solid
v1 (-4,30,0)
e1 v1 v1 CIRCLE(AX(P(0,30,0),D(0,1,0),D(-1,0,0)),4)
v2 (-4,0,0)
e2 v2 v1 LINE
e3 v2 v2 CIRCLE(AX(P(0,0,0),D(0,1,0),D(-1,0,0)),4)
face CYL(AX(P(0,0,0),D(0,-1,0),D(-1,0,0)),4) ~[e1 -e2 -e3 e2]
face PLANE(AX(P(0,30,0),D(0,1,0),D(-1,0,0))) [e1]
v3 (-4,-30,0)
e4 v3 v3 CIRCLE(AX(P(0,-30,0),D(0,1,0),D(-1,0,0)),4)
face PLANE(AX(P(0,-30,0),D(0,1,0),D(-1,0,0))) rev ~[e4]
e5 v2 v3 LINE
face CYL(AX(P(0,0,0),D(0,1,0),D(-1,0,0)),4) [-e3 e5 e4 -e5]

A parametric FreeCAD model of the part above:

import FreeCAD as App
import Part
import Sketcher
Q = App.Units.Quantity

doc = App.newDocument("Part")
params = doc.addObject("Spreadsheet::Sheet", "Params")
for row, (alias, value) in enumerate([
    ("sketch1_diameter", "8 mm"),
    ("pad1_length", "60 mm"),
], start=1):
    params.set(f"A{row}", alias)
    params.set(f"B{row}", "=" + value)
    params.setAlias(f"B{row}", alias)

body = doc.addObject("PartDesign::Body", "Body")

# Sketch on XZ plane
sketch1 = body.newObject("Sketcher::SketchObject", "Sketch")
sketch1.AttachmentSupport = (doc.getObject("XZ_Plane"), [""])
sketch1.MapMode = "FlatFace"
sketch1.addGeometry(Part.Circle(App.Vector(0, 0, 0), App.Vector(0, 0, 1), 4), False)
sketch1.addConstraint([
    Sketcher.Constraint("Coincident", 0, 3, -1, 1),
    Sketcher.Constraint("Diameter", 0, Q("8 mm")),
])
sketch1.setExpression("Constraints[1]", "Params.sketch1_diameter")
pad1 = body.newObject("PartDesign::Pad", "Pad")
pad1.Profile = sketch1
pad1.setExpression("Length", "Params.pad1_length")
pad1.Midplane = True

doc.recompute()
